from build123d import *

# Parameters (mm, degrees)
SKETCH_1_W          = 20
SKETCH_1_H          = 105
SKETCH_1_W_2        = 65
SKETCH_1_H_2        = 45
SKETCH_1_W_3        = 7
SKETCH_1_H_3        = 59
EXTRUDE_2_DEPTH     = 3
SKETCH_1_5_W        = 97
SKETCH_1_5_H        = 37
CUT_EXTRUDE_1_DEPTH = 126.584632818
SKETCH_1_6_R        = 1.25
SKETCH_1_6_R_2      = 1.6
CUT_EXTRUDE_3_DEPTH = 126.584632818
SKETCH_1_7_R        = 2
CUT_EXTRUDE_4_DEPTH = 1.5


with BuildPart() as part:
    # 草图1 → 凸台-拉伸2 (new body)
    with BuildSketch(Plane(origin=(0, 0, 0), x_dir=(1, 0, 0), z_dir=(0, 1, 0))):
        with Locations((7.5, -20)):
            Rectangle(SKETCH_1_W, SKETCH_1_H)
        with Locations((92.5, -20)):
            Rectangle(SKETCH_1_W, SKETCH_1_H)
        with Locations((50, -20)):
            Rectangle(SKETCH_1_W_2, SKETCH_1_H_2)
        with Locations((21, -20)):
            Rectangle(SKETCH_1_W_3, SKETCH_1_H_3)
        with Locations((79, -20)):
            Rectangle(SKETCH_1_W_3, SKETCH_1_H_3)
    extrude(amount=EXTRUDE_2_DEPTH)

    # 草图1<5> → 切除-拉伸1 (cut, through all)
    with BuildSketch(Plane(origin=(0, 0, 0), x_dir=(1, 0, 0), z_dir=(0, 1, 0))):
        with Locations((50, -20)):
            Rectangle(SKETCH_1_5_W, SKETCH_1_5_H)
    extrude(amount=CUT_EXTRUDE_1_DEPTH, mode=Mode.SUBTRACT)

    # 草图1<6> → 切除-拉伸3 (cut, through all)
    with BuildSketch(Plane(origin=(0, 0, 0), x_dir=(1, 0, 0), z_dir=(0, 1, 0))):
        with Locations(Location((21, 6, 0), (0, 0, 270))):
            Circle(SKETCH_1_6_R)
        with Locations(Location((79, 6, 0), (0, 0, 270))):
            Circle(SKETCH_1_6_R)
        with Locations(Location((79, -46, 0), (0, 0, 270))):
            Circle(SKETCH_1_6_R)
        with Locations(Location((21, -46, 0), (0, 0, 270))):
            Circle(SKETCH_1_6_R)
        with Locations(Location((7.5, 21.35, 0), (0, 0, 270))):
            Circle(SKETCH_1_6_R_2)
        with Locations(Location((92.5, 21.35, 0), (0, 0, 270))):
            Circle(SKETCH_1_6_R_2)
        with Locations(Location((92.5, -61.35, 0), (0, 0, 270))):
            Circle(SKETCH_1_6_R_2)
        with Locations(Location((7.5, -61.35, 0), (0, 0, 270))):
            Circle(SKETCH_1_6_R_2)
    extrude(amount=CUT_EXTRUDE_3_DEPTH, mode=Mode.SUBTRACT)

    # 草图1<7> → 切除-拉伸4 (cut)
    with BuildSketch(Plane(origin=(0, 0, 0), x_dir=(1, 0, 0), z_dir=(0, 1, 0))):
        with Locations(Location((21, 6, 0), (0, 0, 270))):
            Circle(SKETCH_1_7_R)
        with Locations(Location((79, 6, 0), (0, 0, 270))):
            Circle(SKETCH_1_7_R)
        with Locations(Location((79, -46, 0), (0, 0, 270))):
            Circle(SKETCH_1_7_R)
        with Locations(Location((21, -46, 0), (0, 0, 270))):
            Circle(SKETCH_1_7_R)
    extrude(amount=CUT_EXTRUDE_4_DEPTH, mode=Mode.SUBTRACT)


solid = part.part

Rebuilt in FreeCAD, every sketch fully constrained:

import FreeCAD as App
import Part
import Sketcher

V = App.Vector
Q = App.Units.Quantity

doc = App.newDocument("Part")
body = doc.addObject("PartDesign::Body", "Body")

# Sketch on XZ plane
sketch1 = body.newObject("Sketcher::SketchObject", "Sketch")
sketch1.AttachmentSupport = (doc.getObject("XZ_Plane"), [""])
sketch1.MapMode = "FlatFace"
sketch1.addGeometry(Part.LineSegment(V(-2, -32, 0), V(-2, 72, 0)), False)
sketch1.addGeometry(Part.LineSegment(V(-2, 72, 0), V(18, 72, 0)), False)
sketch1.addGeometry(Part.LineSegment(V(18, 72, 0), V(18, 50, 0)), False)
sketch1.addGeometry(Part.LineSegment(V(18, 50, 0), V(24, 50, 0)), False)
sketch1.addGeometry(Part.LineSegment(V(24, 50, 0), V(24, 42, 0)), False)
sketch1.addGeometry(Part.LineSegment(V(24, 42, 0), V(76, 42, 0)), False)
sketch1.addGeometry(Part.LineSegment(V(76, 42, 0), V(76, 50, 0)), False)
sketch1.addGeometry(Part.LineSegment(V(76, 50, 0), V(82, 50, 0)), False)
sketch1.addGeometry(Part.LineSegment(V(82, 50, 0), V(82, 72, 0)), False)
sketch1.addGeometry(Part.LineSegment(V(82, 72, 0), V(102, 72, 0)), False)
sketch1.addGeometry(Part.LineSegment(V(102, 72, 0), V(102, -32, 0)), False)
sketch1.addGeometry(Part.LineSegment(V(102, -32, 0), V(82, -32, 0)), False)
sketch1.addGeometry(Part.LineSegment(V(82, -32, 0), V(82, -10, 0)), False)
sketch1.addGeometry(Part.LineSegment(V(82, -10, 0), V(76, -10, 0)), False)
sketch1.addGeometry(Part.LineSegment(V(76, -10, 0), V(76, -2, 0)), False)
sketch1.addGeometry(Part.LineSegment(V(76, -2, 0), V(24, -2, 0)), False)
sketch1.addGeometry(Part.LineSegment(V(24, -2, 0), V(24, -10, 0)), False)
sketch1.addGeometry(Part.LineSegment(V(24, -10, 0), V(18, -10, 0)), False)
sketch1.addGeometry(Part.LineSegment(V(18, -10, 0), V(18, -32, 0)), False)
sketch1.addGeometry(Part.LineSegment(V(18, -32, 0), V(-2, -32, 0)), False)
sketch1.addConstraint(Sketcher.Constraint("Coincident", 0, 2, 1, 1))
sketch1.addConstraint(Sketcher.Constraint("Coincident", 1, 2, 2, 1))
sketch1.addConstraint(Sketcher.Constraint("Coincident", 2, 2, 3, 1))
sketch1.addConstraint(Sketcher.Constraint("Coincident", 3, 2, 4, 1))
sketch1.addConstraint(Sketcher.Constraint("Coincident", 4, 2, 5, 1))
sketch1.addConstraint(Sketcher.Constraint("Coincident", 5, 2, 6, 1))
sketch1.addConstraint(Sketcher.Constraint("Coincident", 6, 2, 7, 1))
sketch1.addConstraint(Sketcher.Constraint("Coincident", 7, 2, 8, 1))
sketch1.addConstraint(Sketcher.Constraint("Coincident", 8, 2, 9, 1))
sketch1.addConstraint(Sketcher.Constraint("Coincident", 9, 2, 10, 1))
sketch1.addConstraint(Sketcher.Constraint("Coincident", 10, 2, 11, 1))
sketch1.addConstraint(Sketcher.Constraint("Coincident", 11, 2, 12, 1))
sketch1.addConstraint(Sketcher.Constraint("Coincident", 12, 2, 13, 1))
sketch1.addConstraint(Sketcher.Constraint("Coincident", 13, 2, 14, 1))
sketch1.addConstraint(Sketcher.Constraint("Coincident", 14, 2, 15, 1))
sketch1.addConstraint(Sketcher.Constraint("Coincident", 15, 2, 16, 1))
sketch1.addConstraint(Sketcher.Constraint("Coincident", 16, 2, 17, 1))
sketch1.addConstraint(Sketcher.Constraint("Coincident", 17, 2, 18, 1))
sketch1.addConstraint(Sketcher.Constraint("Coincident", 18, 2, 19, 1))
sketch1.addConstraint(Sketcher.Constraint("Coincident", 19, 2, 0, 1))
sketch1.addConstraint(Sketcher.Constraint("Vertical", 0))
sketch1.addConstraint(Sketcher.Constraint("Horizontal", 1))
sketch1.addConstraint(Sketcher.Constraint("Vertical", 2))
sketch1.addConstraint(Sketcher.Constraint("Horizontal", 3))
sketch1.addConstraint(Sketcher.Constraint("Vertical", 4))
sketch1.addConstraint(Sketcher.Constraint("Horizontal", 5))
sketch1.addConstraint(Sketcher.Constraint("Vertical", 6))
sketch1.addConstraint(Sketcher.Constraint("Horizontal", 7))
sketch1.addConstraint(Sketcher.Constraint("Vertical", 8))
sketch1.addConstraint(Sketcher.Constraint("Horizontal", 9))
sketch1.addConstraint(Sketcher.Constraint("Vertical", 10))
sketch1.addConstraint(Sketcher.Constraint("Horizontal", 11))
sketch1.addConstraint(Sketcher.Constraint("Vertical", 12))
sketch1.addConstraint(Sketcher.Constraint("Horizontal", 13))
sketch1.addConstraint(Sketcher.Constraint("Vertical", 14))
sketch1.addConstraint(Sketcher.Constraint("Horizontal", 15))
sketch1.addConstraint(Sketcher.Constraint("Vertical", 16))
sketch1.addConstraint(Sketcher.Constraint("Horizontal", 17))
sketch1.addConstraint(Sketcher.Constraint("Vertical", 18))
sketch1.addConstraint(Sketcher.Constraint("Horizontal", 19))
sketch1.addConstraint(Sketcher.Constraint("Horizontal", 3, 2, 6, 2))
sketch1.addConstraint(Sketcher.Constraint("Horizontal", 1, 2, 8, 2))
sketch1.addConstraint(Sketcher.Constraint("Horizontal", 13, 2, 16, 2))
sketch1.addConstraint(Sketcher.Constraint("Horizontal", 11, 2, 18, 2))
sketch1.addConstraint(Sketcher.Constraint("Vertical", 8, 2, 11, 2))
sketch1.addConstraint(Sketcher.Constraint("Vertical", 6, 2, 13, 2))
sketch1.addConstraint(Sketcher.Constraint("Vertical", 4, 2, 15, 2))
sketch1.addConstraint(Sketcher.Constraint("Vertical", 2, 2, 17, 2))
sketch1.addConstraint(Sketcher.Constraint("Equal", 3, 7))
sketch1.addConstraint(Sketcher.Constraint("Equal", 1, 9))
sketch1.addConstraint(Sketcher.Constraint("Equal", 17, 4))
sketch1.addConstraint(Sketcher.Constraint("Equal", 8, 12))
sketch1.addConstraint(Sketcher.Constraint("Equal", 6, 14))
sketch1.addConstraint(Sketcher.Constraint("DistanceX", 1, 1, 1, 2, Q("20 mm")))
sketch1.addConstraint(Sketcher.Constraint("DistanceX", 3, 1, 3, 2, Q("7 mm")))
sketch1.addConstraint(Sketcher.Constraint("DistanceX", 5, 1, 5, 2, Q("51 mm")))
sketch1.addConstraint(Sketcher.Constraint("DistanceY", 0, 1, 0, 2, Q("105 mm")))
sketch1.addConstraint(Sketcher.Constraint("DistanceY", 2, 2, 2, 1, Q("23 mm")))
sketch1.addConstraint(Sketcher.Constraint("DistanceX", 0, 2, -1, 1, Q("2.5 mm")))
sketch1.addConstraint(Sketcher.Constraint("DistanceY", -1, 1, 0, 2, Q("72.5 mm")))
pad1 = body.newObject("PartDesign::Pad", "Pad")
pad1.Profile = sketch1
pad1.Length = 3
pad1.Reversed = True

# Sketch on XZ plane
sketch2 = body.newObject("Sketcher::SketchObject", "Sketch001")
sketch2.AttachmentSupport = (doc.getObject("XZ_Plane"), [""])
sketch2.MapMode = "FlatFace"
sketch2.addGeometry(Part.LineSegment(V(2, 2, 0), V(2, 38, 0)), False)
sketch2.addGeometry(Part.LineSegment(V(2, 38, 0), V(98, 38, 0)), False)
sketch2.addGeometry(Part.LineSegment(V(98, 38, 0), V(98, 2, 0)), False)
sketch2.addGeometry(Part.LineSegment(V(98, 2, 0), V(2, 2, 0)), False)
sketch2.addConstraint(Sketcher.Constraint("Coincident", 0, 2, 1, 1))
sketch2.addConstraint(Sketcher.Constraint("Coincident", 1, 2, 2, 1))
sketch2.addConstraint(Sketcher.Constraint("Coincident", 2, 2, 3, 1))
sketch2.addConstraint(Sketcher.Constraint("Coincident", 3, 2, 0, 1))
sketch2.addConstraint(Sketcher.Constraint("Vertical", 0))
sketch2.addConstraint(Sketcher.Constraint("Horizontal", 1))
sketch2.addConstraint(Sketcher.Constraint("Vertical", 2))
sketch2.addConstraint(Sketcher.Constraint("Horizontal", 3))
sketch2.addConstraint(Sketcher.Constraint("DistanceX", 1, 1, 1, 2, Q("97 mm")))
sketch2.addConstraint(Sketcher.Constraint("DistanceY", 0, 1, 0, 2, Q("37 mm")))
sketch2.addConstraint(Sketcher.Constraint("DistanceX", -1, 1, 0, 2, Q("1.5 mm")))
sketch2.addConstraint(Sketcher.Constraint("DistanceY", -1, 1, 0, 2, Q("38.5 mm")))
pocket1 = body.newObject("PartDesign::Pocket", "Pocket")
pocket1.Profile = sketch2
pocket1.Type = "ThroughAll"

# Sketch on XZ plane
sketch3 = body.newObject("Sketcher::SketchObject", "Sketch002")
sketch3.AttachmentSupport = (doc.getObject("XZ_Plane"), [""])
sketch3.MapMode = "FlatFace"
sketch3.addGeometry(Part.Circle(V(21, -6, 0), V(0, 0, 1), 1.2), False)
sketch3.addGeometry(Part.Circle(V(79, -6, 0), V(0, 0, 1), 1.2), False)
sketch3.addGeometry(Part.Circle(V(79, 46, 0), V(0, 0, 1), 1.2), False)
sketch3.addGeometry(Part.Circle(V(21, 46, 0), V(0, 0, 1), 1.2), False)
sketch3.addGeometry(Part.Circle(V(7.5, -21.4, 0), V(0, 0, 1), 1.6), False)
sketch3.addGeometry(Part.Circle(V(92.5, -21.4, 0), V(0, 0, 1), 1.6), False)
sketch3.addGeometry(Part.Circle(V(92.5, 61.4, 0), V(0, 0, 1), 1.6), False)
sketch3.addGeometry(Part.Circle(V(7.5, 61.4, 0), V(0, 0, 1), 1.6), False)
sketch3.addConstraint(Sketcher.Constraint("Equal", 0, 1))
sketch3.addConstraint(Sketcher.Constraint("Equal", 1, 2))
sketch3.addConstraint(Sketcher.Constraint("Equal", 2, 3))
sketch3.addConstraint(Sketcher.Constraint("Equal", 4, 5))
sketch3.addConstraint(Sketcher.Constraint("Equal", 5, 6))
sketch3.addConstraint(Sketcher.Constraint("Equal", 6, 7))
sketch3.addConstraint(Sketcher.Constraint("Horizontal", 0, 3, 1, 3))
sketch3.addConstraint(Sketcher.Constraint("Horizontal", 2, 3, 3, 3))
sketch3.addConstraint(Sketcher.Constraint("Horizontal", 4, 3, 5, 3))
sketch3.addConstraint(Sketcher.Constraint("Horizontal", 6, 3, 7, 3))
sketch3.addConstraint(Sketcher.Constraint("Vertical", 1, 3, 2, 3))
sketch3.addConstraint(Sketcher.Constraint("Vertical", 0, 3, 3, 3))
sketch3.addConstraint(Sketcher.Constraint("Vertical", 5, 3, 6, 3))
sketch3.addConstraint(Sketcher.Constraint("Vertical", 4, 3, 7, 3))
sketch3.addConstraint(Sketcher.Constraint("Diameter", 0, Q("2.5 mm")))
sketch3.addConstraint(Sketcher.Constraint("Diameter", 4, Q("3.2 mm")))
sketch3.addConstraint(Sketcher.Constraint("DistanceX", -1, 1, 0, 3, Q("21 mm")))
sketch3.addConstraint(Sketcher.Constraint("DistanceY", 0, 3, -1, 1, Q("6 mm")))
sketch3.addConstraint(Sketcher.Constraint("DistanceX", -1, 1, 1, 3, Q("79 mm")))
sketch3.addConstraint(Sketcher.Constraint("DistanceY", -1, 1, 2, 3, Q("46 mm")))
sketch3.addConstraint(Sketcher.Constraint("DistanceX", 4, 3, 5, 3, Q("85 mm")))
sketch3.addConstraint(Sketcher.Constraint("DistanceX", -1, 1, 4, 3, Q("7.5 mm")))
sketch3.addConstraint(Sketcher.Constraint("DistanceY", 5, 3, 6, 3, Q("82.7 mm")))
sketch3.addConstraint(Sketcher.Constraint("DistanceY", 4, 3, -1, 1, Q("21.35 mm")))
pocket2 = body.newObject("PartDesign::Pocket", "Pocket001")
pocket2.Profile = sketch3
pocket2.Type = "ThroughAll"

# Sketch on XZ plane
sketch4 = body.newObject("Sketcher::SketchObject", "Sketch003")
sketch4.AttachmentSupport = (doc.getObject("XZ_Plane"), [""])
sketch4.MapMode = "FlatFace"
sketch4.addGeometry(Part.Circle(V(21, -6, 0), V(0, 0, 1), 2), False)
sketch4.addGeometry(Part.Circle(V(79, -6, 0), V(0, 0, 1), 2), False)
sketch4.addGeometry(Part.Circle(V(79, 46, 0), V(0, 0, 1), 2), False)
sketch4.addGeometry(Part.Circle(V(21, 46, 0), V(0, 0, 1), 2), False)
sketch4.addConstraint(Sketcher.Constraint("Equal", 0, 1))
sketch4.addConstraint(Sketcher.Constraint("Equal", 1, 2))
sketch4.addConstraint(Sketcher.Constraint("Equal", 2, 3))
sketch4.addConstraint(Sketcher.Constraint("Horizontal", 0, 3, 1, 3))
sketch4.addConstraint(Sketcher.Constraint("Horizontal", 2, 3, 3, 3))
sketch4.addConstraint(Sketcher.Constraint("Vertical", 1, 3, 2, 3))
sketch4.addConstraint(Sketcher.Constraint("Vertical", 0, 3, 3, 3))
sketch4.addConstraint(Sketcher.Constraint("Diameter", 0, Q("4 mm")))
sketch4.addConstraint(Sketcher.Constraint("DistanceX", -1, 1, 0, 3, Q("21 mm")))
sketch4.addConstraint(Sketcher.Constraint("DistanceY", 0, 3, -1, 1, Q("6 mm")))
sketch4.addConstraint(Sketcher.Constraint("DistanceX", -1, 1, 1, 3, Q("79 mm")))
sketch4.addConstraint(Sketcher.Constraint("DistanceY", -1, 1, 2, 3, Q("46 mm")))
pocket3 = body.newObject("PartDesign::Pocket", "Pocket002")
pocket3.Profile = sketch4
pocket3.Length = 1.5

doc.recompute()
